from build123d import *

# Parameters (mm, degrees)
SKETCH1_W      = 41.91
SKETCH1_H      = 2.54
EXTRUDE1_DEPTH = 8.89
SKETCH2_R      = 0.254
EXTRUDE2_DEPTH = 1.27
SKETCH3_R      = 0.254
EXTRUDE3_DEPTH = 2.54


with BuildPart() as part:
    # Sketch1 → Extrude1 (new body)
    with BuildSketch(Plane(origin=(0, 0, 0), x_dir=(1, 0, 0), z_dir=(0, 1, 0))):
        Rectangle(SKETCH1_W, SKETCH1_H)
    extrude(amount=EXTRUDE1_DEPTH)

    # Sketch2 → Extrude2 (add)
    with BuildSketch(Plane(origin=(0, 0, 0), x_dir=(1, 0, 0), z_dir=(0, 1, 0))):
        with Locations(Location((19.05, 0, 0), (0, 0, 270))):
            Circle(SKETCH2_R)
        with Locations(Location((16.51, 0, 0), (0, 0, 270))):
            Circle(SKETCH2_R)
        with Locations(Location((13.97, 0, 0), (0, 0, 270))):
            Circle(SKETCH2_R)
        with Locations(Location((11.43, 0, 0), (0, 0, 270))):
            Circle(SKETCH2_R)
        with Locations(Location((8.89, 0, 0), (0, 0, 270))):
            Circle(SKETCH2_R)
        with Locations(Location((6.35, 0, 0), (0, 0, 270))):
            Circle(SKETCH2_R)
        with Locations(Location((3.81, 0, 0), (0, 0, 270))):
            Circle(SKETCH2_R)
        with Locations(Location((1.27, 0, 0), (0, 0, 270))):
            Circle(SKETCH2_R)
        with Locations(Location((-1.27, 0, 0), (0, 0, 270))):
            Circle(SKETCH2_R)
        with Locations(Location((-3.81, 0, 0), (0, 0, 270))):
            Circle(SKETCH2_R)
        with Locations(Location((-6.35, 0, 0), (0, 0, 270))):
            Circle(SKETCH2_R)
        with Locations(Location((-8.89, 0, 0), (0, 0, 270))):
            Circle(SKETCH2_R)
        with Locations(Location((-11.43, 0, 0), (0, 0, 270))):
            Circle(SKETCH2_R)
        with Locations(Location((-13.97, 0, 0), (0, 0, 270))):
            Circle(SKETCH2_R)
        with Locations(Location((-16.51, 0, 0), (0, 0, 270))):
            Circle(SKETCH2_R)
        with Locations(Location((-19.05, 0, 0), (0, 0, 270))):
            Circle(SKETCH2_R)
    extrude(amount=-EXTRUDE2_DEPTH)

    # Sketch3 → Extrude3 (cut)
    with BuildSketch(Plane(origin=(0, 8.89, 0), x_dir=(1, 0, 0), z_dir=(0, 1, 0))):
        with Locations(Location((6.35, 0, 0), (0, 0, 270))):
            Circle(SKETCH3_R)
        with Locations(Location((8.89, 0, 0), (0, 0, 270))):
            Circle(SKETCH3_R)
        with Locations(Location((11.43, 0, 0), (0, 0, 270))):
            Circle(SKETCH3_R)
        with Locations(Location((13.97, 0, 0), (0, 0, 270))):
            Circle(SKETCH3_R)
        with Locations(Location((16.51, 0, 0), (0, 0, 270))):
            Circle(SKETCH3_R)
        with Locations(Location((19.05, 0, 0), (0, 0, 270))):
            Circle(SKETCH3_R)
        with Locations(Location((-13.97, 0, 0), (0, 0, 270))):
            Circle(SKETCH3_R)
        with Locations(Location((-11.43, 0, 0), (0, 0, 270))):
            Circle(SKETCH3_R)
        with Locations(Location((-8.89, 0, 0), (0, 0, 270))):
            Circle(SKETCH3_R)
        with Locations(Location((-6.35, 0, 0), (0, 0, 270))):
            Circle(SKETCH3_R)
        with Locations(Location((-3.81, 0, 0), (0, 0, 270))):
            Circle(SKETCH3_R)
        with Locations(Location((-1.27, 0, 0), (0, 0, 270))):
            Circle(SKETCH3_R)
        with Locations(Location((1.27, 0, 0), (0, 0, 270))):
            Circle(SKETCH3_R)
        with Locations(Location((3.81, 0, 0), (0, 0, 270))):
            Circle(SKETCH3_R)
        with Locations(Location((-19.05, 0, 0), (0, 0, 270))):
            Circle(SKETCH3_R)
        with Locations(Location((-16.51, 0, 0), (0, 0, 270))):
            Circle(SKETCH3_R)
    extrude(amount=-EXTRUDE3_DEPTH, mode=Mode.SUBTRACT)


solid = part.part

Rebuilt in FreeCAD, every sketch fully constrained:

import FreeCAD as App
import Part
import Sketcher
from FreeCAD import Vector
Q = App.Units.Quantity

doc = App.newDocument("Part")
body = doc.addObject("PartDesign::Body", "Body")

sketch1 = body.newObject("Sketcher::SketchObject", "Sketch")
sketch1.AttachmentSupport = (doc.getObject("XZ_Plane"), [""])
sketch1.MapMode = "FlatFace"
sketch1.addGeometry(Part.LineSegment(Vector(-21, -1.3, 0), Vector(-21, 1.3, 0)), False)
sketch1.addGeometry(Part.LineSegment(Vector(-21, 1.3, 0), Vector(21, 1.3, 0)), False)
sketch1.addGeometry(Part.LineSegment(Vector(21, 1.3, 0), Vector(21, -1.3, 0)), False)
sketch1.addGeometry(Part.LineSegment(Vector(21, -1.3, 0), Vector(-21, -1.3, 0)), False)
sketch1.addConstraint(Sketcher.Constraint("Coincident", 0, 2, 1, 1))
sketch1.addConstraint(Sketcher.Constraint("Coincident", 1, 2, 2, 1))
sketch1.addConstraint(Sketcher.Constraint("Coincident", 2, 2, 3, 1))
sketch1.addConstraint(Sketcher.Constraint("Coincident", 3, 2, 0, 1))
sketch1.addConstraint(Sketcher.Constraint("Vertical", 0))
sketch1.addConstraint(Sketcher.Constraint("Horizontal", 1))
sketch1.addConstraint(Sketcher.Constraint("Vertical", 2))
sketch1.addConstraint(Sketcher.Constraint("Horizontal", 3))
sketch1.addConstraint(Sketcher.Constraint("Symmetric", 0, 2, 2, 2, -1, 1))
sketch1.addConstraint(Sketcher.Constraint("DistanceY", 0, 1, 0, 2, Q("0.1 in")))
sketch1.addConstraint(Sketcher.Constraint("DistanceX", 1, 1, 1, 2, Q("1.65 in")))
pad1 = body.newObject("PartDesign::Pad", "Pad")
pad1.Profile = sketch1
pad1.Length = Q("0.35 in")
pad1.Reversed = True

sketch2 = body.newObject("Sketcher::SketchObject", "Sketch001")
sketch2.AttachmentSupport = (doc.getObject("XZ_Plane"), [""])
sketch2.MapMode = "FlatFace"
sketch2.addGeometry(Part.Circle(Vector(19.05, 0, 0), Vector(0, 0, 1), 0.25), False)
sketch2.addGeometry(Part.Circle(Vector(16.51, 0, 0), Vector(0, 0, 1), 0.25), False)
sketch2.addGeometry(Part.Circle(Vector(13.97, 0, 0), Vector(0, 0, 1), 0.25), False)
sketch2.addGeometry(Part.Circle(Vector(11.43, 0, 0), Vector(0, 0, 1), 0.25), False)
sketch2.addGeometry(Part.Circle(Vector(8.89, 0, 0), Vector(0, 0, 1), 0.25), False)
sketch2.addGeometry(Part.Circle(Vector(6.35, 0, 0), Vector(0, 0, 1), 0.25), False)
sketch2.addGeometry(Part.Circle(Vector(3.81, 0, 0), Vector(0, 0, 1), 0.25), False)
sketch2.addGeometry(Part.Circle(Vector(1.27, 0, 0), Vector(0, 0, 1), 0.25), False)
sketch2.addGeometry(Part.Circle(Vector(-1.27, 0, 0), Vector(0, 0, 1), 0.25), False)
sketch2.addGeometry(Part.Circle(Vector(-3.81, 0, 0), Vector(0, 0, 1), 0.25), False)
sketch2.addGeometry(Part.Circle(Vector(-6.35, 0, 0), Vector(0, 0, 1), 0.25), False)
sketch2.addGeometry(Part.Circle(Vector(-8.89, 0, 0), Vector(0, 0, 1), 0.25), False)
sketch2.addGeometry(Part.Circle(Vector(-11.43, 0, 0), Vector(0, 0, 1), 0.25), False)
sketch2.addGeometry(Part.Circle(Vector(-13.97, 0, 0), Vector(0, 0, 1), 0.25), False)
sketch2.addGeometry(Part.Circle(Vector(-16.51, 0, 0), Vector(0, 0, 1), 0.25), False)
sketch2.addGeometry(Part.Circle(Vector(-19.05, 0, 0), Vector(0, 0, 1), 0.25), False)
sketch2.addConstraint(Sketcher.Constraint("Equal", 0, 1))
sketch2.addConstraint(Sketcher.Constraint("Equal", 1, 2))
sketch2.addConstraint(Sketcher.Constraint("Equal", 2, 3))
sketch2.addConstraint(Sketcher.Constraint("Equal", 3, 4))
sketch2.addConstraint(Sketcher.Constraint("Equal", 4, 5))
sketch2.addConstraint(Sketcher.Constraint("Equal", 5, 6))
sketch2.addConstraint(Sketcher.Constraint("Equal", 6, 7))
sketch2.addConstraint(Sketcher.Constraint("Equal", 7, 8))
sketch2.addConstraint(Sketcher.Constraint("Equal", 8, 9))
sketch2.addConstraint(Sketcher.Constraint("Equal", 9, 10))
sketch2.addConstraint(Sketcher.Constraint("Equal", 10, 11))
sketch2.addConstraint(Sketcher.Constraint("Equal", 11, 12))
sketch2.addConstraint(Sketcher.Constraint("Equal", 12, 13))
sketch2.addConstraint(Sketcher.Constraint("Equal", 13, 14))
sketch2.addConstraint(Sketcher.Constraint("Equal", 14, 15))
sketch2.addConstraint(Sketcher.Constraint("Symmetric", 7, 3, 8, 3, -1, 1))
sketch2.addConstraint(Sketcher.Constraint("Symmetric", 6, 3, 9, 3, -1, 1))
sketch2.addConstraint(Sketcher.Constraint("Symmetric", 5, 3, 10, 3, -1, 1))
sketch2.addConstraint(Sketcher.Constraint("Symmetric", 4, 3, 11, 3, -1, 1))
sketch2.addConstraint(Sketcher.Constraint("Symmetric", 3, 3, 12, 3, -1, 1))
sketch2.addConstraint(Sketcher.Constraint("Symmetric", 2, 3, 13, 3, -1, 1))
sketch2.addConstraint(Sketcher.Constraint("Symmetric", 1, 3, 14, 3, -1, 1))
sketch2.addConstraint(Sketcher.Constraint("Symmetric", 0, 3, 15, 3, -1, 1))
sketch2.addConstraint(Sketcher.Constraint("PointOnObject", 0, 3, -1))
sketch2.addConstraint(Sketcher.Constraint("PointOnObject", 1, 3, -1))
sketch2.addConstraint(Sketcher.Constraint("PointOnObject", 2, 3, -1))
sketch2.addConstraint(Sketcher.Constraint("PointOnObject", 3, 3, -1))
sketch2.addConstraint(Sketcher.Constraint("PointOnObject", 4, 3, -1))
sketch2.addConstraint(Sketcher.Constraint("PointOnObject", 5, 3, -1))
sketch2.addConstraint(Sketcher.Constraint("PointOnObject", 6, 3, -1))
sketch2.addConstraint(Sketcher.Constraint("PointOnObject", 7, 3, -1))
sketch2.addConstraint(Sketcher.Constraint("Diameter", 0, Q("0.02 in")))
sketch2.addConstraint(Sketcher.Constraint("DistanceX", 1, 3, 0, 3, Q("0.1 in")))
sketch2.addConstraint(Sketcher.Constraint("DistanceX", 2, 3, 1, 3, Q("0.1 in")))
sketch2.addConstraint(Sketcher.Constraint("DistanceX", 3, 3, 2, 3, Q("0.1 in")))
sketch2.addConstraint(Sketcher.Constraint("DistanceX", 4, 3, 3, 3, Q("0.1 in")))
sketch2.addConstraint(Sketcher.Constraint("DistanceX", 5, 3, 4, 3, Q("0.1 in")))
sketch2.addConstraint(Sketcher.Constraint("DistanceX", 6, 3, 5, 3, Q("0.1 in")))
sketch2.addConstraint(Sketcher.Constraint("DistanceX", 7, 3, 6, 3, Q("0.1 in")))
sketch2.addConstraint(Sketcher.Constraint("DistanceX", 8, 3, 7, 3, Q("0.1 in")))
pad2 = body.newObject("PartDesign::Pad", "Pad001")
pad2.Profile = sketch2
pad2.Length = Q("0.05 in")

sketch3 = body.newObject("Sketcher::SketchObject", "Sketch002")
sketch3.AttachmentSupport = (doc.getObject("XZ_Plane"), [""])
sketch3.MapMode = "FlatFace"
sketch3.AttachmentOffset = App.Placement(Vector(0, 0, -0.35 * 25.4), App.Rotation())
sketch3.addGeometry(Part.Circle(Vector(6.35, 0, 0), Vector(0, 0, 1), 0.25), False)
sketch3.addGeometry(Part.Circle(Vector(8.89, 0, 0), Vector(0, 0, 1), 0.25), False)
sketch3.addGeometry(Part.Circle(Vector(11.43, 0, 0), Vector(0, 0, 1), 0.25), False)
sketch3.addGeometry(Part.Circle(Vector(13.97, 0, 0), Vector(0, 0, 1), 0.25), False)
sketch3.addGeometry(Part.Circle(Vector(16.51, 0, 0), Vector(0, 0, 1), 0.25), False)
sketch3.addGeometry(Part.Circle(Vector(19.05, 0, 0), Vector(0, 0, 1), 0.25), False)
sketch3.addGeometry(Part.Circle(Vector(-13.97, 0, 0), Vector(0, 0, 1), 0.25), False)
sketch3.addGeometry(Part.Circle(Vector(-11.43, 0, 0), Vector(0, 0, 1), 0.25), False)
sketch3.addGeometry(Part.Circle(Vector(-8.89, 0, 0), Vector(0, 0, 1), 0.25), False)
sketch3.addGeometry(Part.Circle(Vector(-6.35, 0, 0), Vector(0, 0, 1), 0.25), False)
sketch3.addGeometry(Part.Circle(Vector(-3.81, 0, 0), Vector(0, 0, 1), 0.25), False)
sketch3.addGeometry(Part.Circle(Vector(-1.27, 0, 0), Vector(0, 0, 1), 0.25), False)
sketch3.addGeometry(Part.Circle(Vector(1.27, 0, 0), Vector(0, 0, 1), 0.25), False)
sketch3.addGeometry(Part.Circle(Vector(3.81, 0, 0), Vector(0, 0, 1), 0.25), False)
sketch3.addGeometry(Part.Circle(Vector(-19.05, 0, 0), Vector(0, 0, 1), 0.25), False)
sketch3.addGeometry(Part.Circle(Vector(-16.51, 0, 0), Vector(0, 0, 1), 0.25), False)
sketch3.addConstraint(Sketcher.Constraint("Equal", 0, 1))
sketch3.addConstraint(Sketcher.Constraint("Equal", 1, 2))
sketch3.addConstraint(Sketcher.Constraint("Equal", 2, 3))
sketch3.addConstraint(Sketcher.Constraint("Equal", 3, 4))
sketch3.addConstraint(Sketcher.Constraint("Equal", 4, 5))
sketch3.addConstraint(Sketcher.Constraint("Equal", 5, 6))
sketch3.addConstraint(Sketcher.Constraint("Equal", 6, 7))
sketch3.addConstraint(Sketcher.Constraint("Equal", 7, 8))
sketch3.addConstraint(Sketcher.Constraint("Equal", 8, 9))
sketch3.addConstraint(Sketcher.Constraint("Equal", 9, 10))
sketch3.addConstraint(Sketcher.Constraint("Equal", 10, 11))
sketch3.addConstraint(Sketcher.Constraint("Equal", 11, 12))
sketch3.addConstraint(Sketcher.Constraint("Equal", 12, 13))
sketch3.addConstraint(Sketcher.Constraint("Equal", 13, 14))
sketch3.addConstraint(Sketcher.Constraint("Equal", 14, 15))
sketch3.addConstraint(Sketcher.Constraint("Symmetric", 3, 3, 6, 3, -1, 1))
sketch3.addConstraint(Sketcher.Constraint("Symmetric", 2, 3, 7, 3, -1, 1))
sketch3.addConstraint(Sketcher.Constraint("Symmetric", 1, 3, 8, 3, -1, 1))
sketch3.addConstraint(Sketcher.Constraint("Symmetric", 0, 3, 9, 3, -1, 1))
sketch3.addConstraint(Sketcher.Constraint("Symmetric", 11, 3, 12, 3, -1, 1))
sketch3.addConstraint(Sketcher.Constraint("Symmetric", 10, 3, 13, 3, -1, 1))
sketch3.addConstraint(Sketcher.Constraint("Symmetric", 5, 3, 14, 3, -1, 1))
sketch3.addConstraint(Sketcher.Constraint("Symmetric", 4, 3, 15, 3, -1, 1))
sketch3.addConstraint(Sketcher.Constraint("PointOnObject", 0, 3, -1))
sketch3.addConstraint(Sketcher.Constraint("PointOnObject", 1, 3, -1))
sketch3.addConstraint(Sketcher.Constraint("PointOnObject", 2, 3, -1))
sketch3.addConstraint(Sketcher.Constraint("PointOnObject", 3, 3, -1))
sketch3.addConstraint(Sketcher.Constraint("PointOnObject", 4, 3, -1))
sketch3.addConstraint(Sketcher.Constraint("PointOnObject", 5, 3, -1))
sketch3.addConstraint(Sketcher.Constraint("PointOnObject", 10, 3, -1))
sketch3.addConstraint(Sketcher.Constraint("PointOnObject", 11, 3, -1))
sketch3.addConstraint(Sketcher.Constraint("Diameter", 0, Q("0.02 in")))
sketch3.addConstraint(Sketcher.Constraint("DistanceX", 6, 3, 2, 3, Q("1 in")))
sketch3.addConstraint(Sketcher.Constraint("DistanceX", 0, 3, 1, 3, Q("0.1 in")))
sketch3.addConstraint(Sketcher.Constraint("DistanceX", 1, 3, 2, 3, Q("0.1 in")))
sketch3.addConstraint(Sketcher.Constraint("DistanceX", 2, 3, 3, 3, Q("0.1 in")))
sketch3.addConstraint(Sketcher.Constraint("DistanceX", 3, 3, 4, 3, Q("0.1 in")))
sketch3.addConstraint(Sketcher.Constraint("DistanceX", 4, 3, 5, 3, Q("0.1 in")))
sketch3.addConstraint(Sketcher.Constraint("DistanceX", 9, 3, 10, 3, Q("0.1 in")))
sketch3.addConstraint(Sketcher.Constraint("DistanceX", 10, 3, 11, 3, Q("0.1 in")))
pocket1 = body.newObject("PartDesign::Pocket", "Pocket")
pocket1.Profile = sketch3
pocket1.Length = Q("0.1 in")
pocket1.Reversed = True

doc.recompute()
